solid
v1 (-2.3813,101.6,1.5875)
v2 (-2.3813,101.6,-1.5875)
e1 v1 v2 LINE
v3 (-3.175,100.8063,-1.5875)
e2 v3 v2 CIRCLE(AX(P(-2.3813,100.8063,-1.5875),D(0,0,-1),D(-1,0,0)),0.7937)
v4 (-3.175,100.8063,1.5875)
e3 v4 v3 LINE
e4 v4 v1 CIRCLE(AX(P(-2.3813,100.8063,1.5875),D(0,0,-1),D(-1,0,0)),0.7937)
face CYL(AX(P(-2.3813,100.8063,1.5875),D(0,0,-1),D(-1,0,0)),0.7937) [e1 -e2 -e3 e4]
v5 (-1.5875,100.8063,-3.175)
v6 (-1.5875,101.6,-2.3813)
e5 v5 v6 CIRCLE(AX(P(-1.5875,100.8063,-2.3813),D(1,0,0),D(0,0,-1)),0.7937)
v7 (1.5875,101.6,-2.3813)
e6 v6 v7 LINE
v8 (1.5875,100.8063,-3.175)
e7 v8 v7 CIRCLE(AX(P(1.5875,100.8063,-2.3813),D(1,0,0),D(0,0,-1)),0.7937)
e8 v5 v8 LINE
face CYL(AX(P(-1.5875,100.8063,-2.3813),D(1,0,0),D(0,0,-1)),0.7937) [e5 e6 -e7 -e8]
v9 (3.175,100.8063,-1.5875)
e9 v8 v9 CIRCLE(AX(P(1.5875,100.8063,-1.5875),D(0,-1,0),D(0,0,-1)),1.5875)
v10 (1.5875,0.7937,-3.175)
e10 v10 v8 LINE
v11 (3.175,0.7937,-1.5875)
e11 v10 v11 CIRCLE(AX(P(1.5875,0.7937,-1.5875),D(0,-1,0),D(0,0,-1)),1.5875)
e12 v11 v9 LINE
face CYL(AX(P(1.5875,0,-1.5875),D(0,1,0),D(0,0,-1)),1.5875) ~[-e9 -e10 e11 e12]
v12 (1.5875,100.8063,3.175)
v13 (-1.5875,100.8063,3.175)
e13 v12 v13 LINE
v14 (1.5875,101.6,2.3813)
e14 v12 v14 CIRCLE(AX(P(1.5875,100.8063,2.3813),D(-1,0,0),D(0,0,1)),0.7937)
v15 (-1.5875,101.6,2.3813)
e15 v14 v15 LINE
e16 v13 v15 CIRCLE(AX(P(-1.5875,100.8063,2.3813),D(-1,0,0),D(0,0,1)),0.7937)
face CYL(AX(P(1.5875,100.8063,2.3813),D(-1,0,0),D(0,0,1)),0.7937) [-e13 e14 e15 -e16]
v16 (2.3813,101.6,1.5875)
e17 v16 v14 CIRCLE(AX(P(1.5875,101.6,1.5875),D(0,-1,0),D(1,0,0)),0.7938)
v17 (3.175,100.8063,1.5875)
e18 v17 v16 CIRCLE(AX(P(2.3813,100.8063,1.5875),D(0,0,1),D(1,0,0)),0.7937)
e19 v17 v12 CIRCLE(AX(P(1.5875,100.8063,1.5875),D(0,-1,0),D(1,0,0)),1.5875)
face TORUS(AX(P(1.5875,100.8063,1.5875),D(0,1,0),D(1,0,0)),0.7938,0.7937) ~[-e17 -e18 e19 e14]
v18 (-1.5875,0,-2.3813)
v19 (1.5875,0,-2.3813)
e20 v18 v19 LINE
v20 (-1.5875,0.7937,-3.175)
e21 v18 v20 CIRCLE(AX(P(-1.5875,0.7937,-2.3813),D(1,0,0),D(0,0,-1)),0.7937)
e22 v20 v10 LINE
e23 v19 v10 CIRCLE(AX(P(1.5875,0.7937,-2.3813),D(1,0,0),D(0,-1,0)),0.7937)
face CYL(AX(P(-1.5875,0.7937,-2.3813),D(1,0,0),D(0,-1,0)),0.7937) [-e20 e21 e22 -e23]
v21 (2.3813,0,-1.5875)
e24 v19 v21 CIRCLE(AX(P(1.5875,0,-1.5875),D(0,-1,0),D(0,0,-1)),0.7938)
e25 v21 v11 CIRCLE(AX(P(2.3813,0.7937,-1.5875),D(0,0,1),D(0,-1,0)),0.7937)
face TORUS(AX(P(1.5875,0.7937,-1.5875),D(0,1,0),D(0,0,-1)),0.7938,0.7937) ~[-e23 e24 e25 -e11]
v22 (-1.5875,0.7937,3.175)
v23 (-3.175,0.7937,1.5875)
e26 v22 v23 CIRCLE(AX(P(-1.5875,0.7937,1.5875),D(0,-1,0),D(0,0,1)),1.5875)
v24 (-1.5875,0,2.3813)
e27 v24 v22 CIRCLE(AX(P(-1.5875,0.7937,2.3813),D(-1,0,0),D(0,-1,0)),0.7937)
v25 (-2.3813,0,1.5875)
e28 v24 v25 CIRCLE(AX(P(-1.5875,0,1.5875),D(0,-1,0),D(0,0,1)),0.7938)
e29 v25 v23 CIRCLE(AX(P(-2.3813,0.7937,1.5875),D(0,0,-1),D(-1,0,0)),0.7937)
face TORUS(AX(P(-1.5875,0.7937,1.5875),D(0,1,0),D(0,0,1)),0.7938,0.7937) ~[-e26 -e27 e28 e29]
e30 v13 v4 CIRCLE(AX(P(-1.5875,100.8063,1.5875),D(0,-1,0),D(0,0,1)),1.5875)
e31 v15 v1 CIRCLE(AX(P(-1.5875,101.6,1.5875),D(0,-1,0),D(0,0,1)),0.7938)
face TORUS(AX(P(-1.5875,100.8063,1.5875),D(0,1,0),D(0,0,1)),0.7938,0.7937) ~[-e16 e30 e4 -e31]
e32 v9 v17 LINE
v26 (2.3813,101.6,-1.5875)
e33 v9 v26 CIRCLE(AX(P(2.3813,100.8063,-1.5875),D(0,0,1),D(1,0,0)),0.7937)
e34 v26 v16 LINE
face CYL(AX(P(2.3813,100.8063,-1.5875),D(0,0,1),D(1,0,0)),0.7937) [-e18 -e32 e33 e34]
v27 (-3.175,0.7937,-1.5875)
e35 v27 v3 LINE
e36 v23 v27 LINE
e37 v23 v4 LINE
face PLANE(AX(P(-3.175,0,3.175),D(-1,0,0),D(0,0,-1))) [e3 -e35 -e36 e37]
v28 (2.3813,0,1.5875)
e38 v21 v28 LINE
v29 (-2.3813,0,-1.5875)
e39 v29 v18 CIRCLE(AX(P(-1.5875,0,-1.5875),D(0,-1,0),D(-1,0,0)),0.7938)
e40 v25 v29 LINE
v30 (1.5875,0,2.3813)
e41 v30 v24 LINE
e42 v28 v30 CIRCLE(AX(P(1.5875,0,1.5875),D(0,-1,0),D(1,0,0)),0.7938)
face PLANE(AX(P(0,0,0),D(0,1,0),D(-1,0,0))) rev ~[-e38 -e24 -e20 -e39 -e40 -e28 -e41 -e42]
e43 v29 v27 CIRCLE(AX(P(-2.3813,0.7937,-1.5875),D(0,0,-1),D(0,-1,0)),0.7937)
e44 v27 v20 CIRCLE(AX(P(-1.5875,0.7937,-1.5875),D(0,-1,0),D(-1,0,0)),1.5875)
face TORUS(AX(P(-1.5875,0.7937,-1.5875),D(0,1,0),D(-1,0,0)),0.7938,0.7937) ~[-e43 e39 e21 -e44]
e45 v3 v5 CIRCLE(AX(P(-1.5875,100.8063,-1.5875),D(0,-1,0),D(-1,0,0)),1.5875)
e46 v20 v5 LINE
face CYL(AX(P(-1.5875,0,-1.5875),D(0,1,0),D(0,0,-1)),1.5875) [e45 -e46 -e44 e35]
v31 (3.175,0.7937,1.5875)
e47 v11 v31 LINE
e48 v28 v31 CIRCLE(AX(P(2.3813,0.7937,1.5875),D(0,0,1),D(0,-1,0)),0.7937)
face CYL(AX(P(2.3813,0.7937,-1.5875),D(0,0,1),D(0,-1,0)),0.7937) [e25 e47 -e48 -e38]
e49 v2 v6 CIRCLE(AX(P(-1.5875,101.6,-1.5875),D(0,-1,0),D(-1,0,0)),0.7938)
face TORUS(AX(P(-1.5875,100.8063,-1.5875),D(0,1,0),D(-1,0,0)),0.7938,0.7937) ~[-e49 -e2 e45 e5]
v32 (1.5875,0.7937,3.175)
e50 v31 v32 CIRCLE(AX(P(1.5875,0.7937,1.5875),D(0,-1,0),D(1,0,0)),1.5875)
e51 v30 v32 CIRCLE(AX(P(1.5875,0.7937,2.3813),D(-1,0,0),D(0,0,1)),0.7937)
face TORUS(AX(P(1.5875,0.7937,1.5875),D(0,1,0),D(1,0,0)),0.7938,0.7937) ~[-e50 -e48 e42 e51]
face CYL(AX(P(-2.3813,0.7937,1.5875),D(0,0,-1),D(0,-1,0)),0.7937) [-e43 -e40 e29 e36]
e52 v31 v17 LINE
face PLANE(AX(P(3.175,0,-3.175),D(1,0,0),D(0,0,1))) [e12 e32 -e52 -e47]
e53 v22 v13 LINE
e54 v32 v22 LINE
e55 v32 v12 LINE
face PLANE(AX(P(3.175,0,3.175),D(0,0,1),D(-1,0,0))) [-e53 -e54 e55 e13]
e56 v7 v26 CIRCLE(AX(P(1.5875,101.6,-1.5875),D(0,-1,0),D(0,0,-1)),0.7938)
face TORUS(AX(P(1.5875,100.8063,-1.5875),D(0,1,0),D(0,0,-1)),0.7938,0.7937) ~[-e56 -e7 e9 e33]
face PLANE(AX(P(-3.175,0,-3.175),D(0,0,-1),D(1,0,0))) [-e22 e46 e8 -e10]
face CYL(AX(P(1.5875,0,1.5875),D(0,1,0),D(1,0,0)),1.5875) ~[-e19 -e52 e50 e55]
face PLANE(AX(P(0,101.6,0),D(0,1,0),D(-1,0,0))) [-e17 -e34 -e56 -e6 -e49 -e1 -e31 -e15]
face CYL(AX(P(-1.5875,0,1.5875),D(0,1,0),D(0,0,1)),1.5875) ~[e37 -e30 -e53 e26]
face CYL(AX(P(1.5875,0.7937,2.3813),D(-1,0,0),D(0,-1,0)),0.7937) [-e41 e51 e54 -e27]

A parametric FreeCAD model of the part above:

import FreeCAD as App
import Part
import Sketcher
from FreeCAD import Vector
Q = App.Units.Quantity


def edges_at(feature, points):
    """Names of the edges that pass closest to the given points."""
    edges = feature.Shape.Edges
    near = lambda p: min(range(len(edges)), key=lambda i: edges[i].distToShape(Part.Vertex(*p))[0])
    return sorted({f"Edge{near(p) + 1}" for p in points})

doc = App.newDocument("Part")
body = doc.addObject("PartDesign::Body", "Body")

# Sketch on XZ plane
sketch1 = body.newObject("Sketcher::SketchObject", "Sketch")
sketch1.AttachmentSupport = (doc.getObject("XZ_Plane"), [""])
sketch1.MapMode = "FlatFace"
sketch1.addGeometry([
    Part.LineSegment(Vector(3, -3, 0), Vector(-3, -3, 0)),
    Part.LineSegment(Vector(-3, -3, 0), Vector(-3, 3, 0)),
    Part.LineSegment(Vector(-3, 3, 0), Vector(3, 3, 0)),
    Part.LineSegment(Vector(3, 3, 0), Vector(3, -3, 0)),
], False)
sketch1.addConstraint([
    Sketcher.Constraint("Coincident", 0, 2, 1, 1),
    Sketcher.Constraint("Coincident", 1, 2, 2, 1),
    Sketcher.Constraint("Coincident", 2, 2, 3, 1),
    Sketcher.Constraint("Coincident", 3, 2, 0, 1),
    Sketcher.Constraint("Horizontal", 0),
    Sketcher.Constraint("Vertical", 1),
    Sketcher.Constraint("Horizontal", 2),
    Sketcher.Constraint("Vertical", 3),
    Sketcher.Constraint("Symmetric", 0, 2, 2, 2, -1, 1),
    Sketcher.Constraint("Equal", 2, 1),
    Sketcher.Constraint("DistanceX", 0, 2, 0, 1, Q("0.25 in")),
])
pad1 = body.newObject("PartDesign::Pad", "Pad")
pad1.Profile = sketch1
pad1.Length = Q("4 in")
pad1.Reversed = True
doc.recompute()

fillet = body.newObject("PartDesign::Fillet", "Fillet")
fillet.Base = (pad1, edges_at(pad1, [
    (3.175, 50.8, -3.175),
    (3.175, 50.8, 3.175),
    (-3.175, 50.8, -3.175),
    (-3.175, 50.8, 3.175),
]))
fillet.Radius = Q("0.0625 in")
doc.recompute()

fillet2 = body.newObject("PartDesign::Fillet", "Fillet001")
fillet2.Base = (fillet, edges_at(fillet, [
    (3.175, 0, 0),
    (2.71, 0, -2.71),
    (0, 0, -3.175),
    (-2.71, 0, -2.71),
    (-3.175, 0, 0),
    (-2.71, 0, 2.71),
    (0, 0, 3.175),
    (2.71, 0, 2.71),
    (2.71, 101.6, -2.71),
    (0, 101.6, -3.175),
    (-2.71, 101.6, -2.71),
    (-3.175, 101.6, 0),
    (-2.71, 101.6, 2.71),
    (0, 101.6, 3.175),
    (2.71, 101.6, 2.71),
    (3.175, 101.6, 0),
]))
fillet2.Radius = Q("0.031248 in")

doc.recompute()
